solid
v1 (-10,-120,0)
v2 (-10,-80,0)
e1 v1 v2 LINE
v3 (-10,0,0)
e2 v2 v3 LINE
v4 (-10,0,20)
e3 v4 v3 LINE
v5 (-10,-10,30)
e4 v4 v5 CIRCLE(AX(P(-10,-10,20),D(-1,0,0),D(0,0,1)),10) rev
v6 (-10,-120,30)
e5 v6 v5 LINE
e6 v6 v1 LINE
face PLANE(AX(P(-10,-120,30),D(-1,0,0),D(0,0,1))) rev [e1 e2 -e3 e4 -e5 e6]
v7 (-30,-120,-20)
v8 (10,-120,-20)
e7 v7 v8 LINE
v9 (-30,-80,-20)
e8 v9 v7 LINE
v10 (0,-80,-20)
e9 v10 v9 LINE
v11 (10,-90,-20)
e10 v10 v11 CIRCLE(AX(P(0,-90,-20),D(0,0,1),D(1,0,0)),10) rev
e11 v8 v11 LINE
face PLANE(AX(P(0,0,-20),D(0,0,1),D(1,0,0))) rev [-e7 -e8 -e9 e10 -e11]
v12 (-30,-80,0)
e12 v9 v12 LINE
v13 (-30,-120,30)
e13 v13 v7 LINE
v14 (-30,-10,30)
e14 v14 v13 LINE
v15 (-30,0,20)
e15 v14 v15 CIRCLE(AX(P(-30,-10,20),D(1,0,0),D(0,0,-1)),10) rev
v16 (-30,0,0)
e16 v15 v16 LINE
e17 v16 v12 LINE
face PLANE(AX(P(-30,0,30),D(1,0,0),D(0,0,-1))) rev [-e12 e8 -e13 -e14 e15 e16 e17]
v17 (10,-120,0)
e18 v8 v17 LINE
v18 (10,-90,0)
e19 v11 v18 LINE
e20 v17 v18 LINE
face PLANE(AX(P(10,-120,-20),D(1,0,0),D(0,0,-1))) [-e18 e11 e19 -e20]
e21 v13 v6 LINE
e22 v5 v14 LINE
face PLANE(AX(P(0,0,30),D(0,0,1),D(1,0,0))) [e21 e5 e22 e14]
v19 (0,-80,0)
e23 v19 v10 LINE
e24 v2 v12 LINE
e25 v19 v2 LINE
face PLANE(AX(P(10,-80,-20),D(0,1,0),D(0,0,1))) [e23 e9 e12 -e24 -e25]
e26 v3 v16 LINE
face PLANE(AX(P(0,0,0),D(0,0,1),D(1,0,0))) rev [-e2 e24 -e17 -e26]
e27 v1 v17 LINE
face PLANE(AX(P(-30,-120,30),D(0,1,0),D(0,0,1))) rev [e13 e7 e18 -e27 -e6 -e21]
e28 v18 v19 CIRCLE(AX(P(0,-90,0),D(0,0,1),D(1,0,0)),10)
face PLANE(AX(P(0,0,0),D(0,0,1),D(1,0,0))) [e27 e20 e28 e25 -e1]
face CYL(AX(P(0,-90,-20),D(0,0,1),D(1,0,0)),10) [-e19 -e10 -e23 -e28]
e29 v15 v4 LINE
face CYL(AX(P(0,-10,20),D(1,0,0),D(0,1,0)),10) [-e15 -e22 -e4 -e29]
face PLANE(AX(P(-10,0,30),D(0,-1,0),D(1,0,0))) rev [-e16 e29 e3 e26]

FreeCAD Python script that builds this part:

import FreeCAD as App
import Part
import Sketcher
from FreeCAD import Vector


def edges_at(feature, points):
    """Names of the edges that pass closest to the given points."""
    edges = feature.Shape.Edges
    near = lambda p: min(range(len(edges)), key=lambda i: edges[i].distToShape(Part.Vertex(*p))[0])
    return sorted({f"Edge{near(p) + 1}" for p in points})


def add_polygon(sketch, points):
    """Adds a closed chain of lines whose ends are joined by coincident constraints."""
    first, n = sketch.GeometryCount, len(points)
    for a, b in zip(points, points[1:] + points[:1]):
        sketch.addGeometry(Part.LineSegment(App.Vector(*a, 0), App.Vector(*b, 0)), False)
    for i in range(n):
        sketch.addConstraint(Sketcher.Constraint("Coincident", first + i, 2, first + (i + 1) % n, 1))

doc = App.newDocument("Part")
body = doc.addObject("PartDesign::Body", "Body")

sketch1 = doc.addObject("Sketcher::SketchObject", "Sketch")
body.addObject(sketch1)
sketch1.AttachmentSupport = (doc.XY_Plane, [""])
sketch1.MapMode = "FlatFace"
add_polygon(sketch1, [(-30, 0), (-30, -120), (-10, -120), (-10, 0)])
sketch1.addConstraint(Sketcher.Constraint("Vertical", 0))
sketch1.addConstraint(Sketcher.Constraint("Horizontal", 1))
sketch1.addConstraint(Sketcher.Constraint("Vertical", 2))
sketch1.addConstraint(Sketcher.Constraint("Horizontal", 3))
sketch1.addConstraint(Sketcher.Constraint("PointOnObject", 2, 2, -1))
sketch1.addConstraint(Sketcher.Constraint("DistanceX", 1, 1, 1, 2, 20.0))
sketch1.addConstraint(Sketcher.Constraint("DistanceY", 0, 2, 0, 1, 120.0))
sketch1.addConstraint(Sketcher.Constraint("DistanceX", 0, 2, -1, 1, 30.0))
pad1 = doc.addObject("PartDesign::Pad", "Pad")
body.addObject(pad1)
pad1.Profile = sketch1
pad1.Length = 30

sketch2 = doc.addObject("Sketcher::SketchObject", "Sketch001")
body.addObject(sketch2)
sketch2.AttachmentSupport = (doc.XY_Plane, [""])
sketch2.MapMode = "FlatFace"
add_polygon(sketch2, [(-30, -80), (-30, -120), (10, -120), (10, -80)])
sketch2.addConstraint(Sketcher.Constraint("Vertical", 0))
sketch2.addConstraint(Sketcher.Constraint("Horizontal", 1))
sketch2.addConstraint(Sketcher.Constraint("Vertical", 2))
sketch2.addConstraint(Sketcher.Constraint("Horizontal", 3))
sketch2.addConstraint(Sketcher.Constraint("Equal", 3, 0))
sketch2.addConstraint(Sketcher.Constraint("DistanceX", 1, 1, 1, 2, 40.0))
sketch2.addConstraint(Sketcher.Constraint("DistanceX", 0, 2, -1, 1, 30.0))
sketch2.addConstraint(Sketcher.Constraint("DistanceY", 0, 2, -1, 1, 120.0))
pad2 = doc.addObject("PartDesign::Pad", "Pad001")
body.addObject(pad2)
pad2.Profile = sketch2
pad2.Length = 20
pad2.Reversed = True
doc.recompute()

fillet = doc.addObject("PartDesign::Fillet", "Fillet")
body.addObject(fillet)
fillet.Base = (pad2, edges_at(pad2, [(10, -80, -10), (-20, 0, 30)]))
fillet.Radius = 10

doc.recompute()
